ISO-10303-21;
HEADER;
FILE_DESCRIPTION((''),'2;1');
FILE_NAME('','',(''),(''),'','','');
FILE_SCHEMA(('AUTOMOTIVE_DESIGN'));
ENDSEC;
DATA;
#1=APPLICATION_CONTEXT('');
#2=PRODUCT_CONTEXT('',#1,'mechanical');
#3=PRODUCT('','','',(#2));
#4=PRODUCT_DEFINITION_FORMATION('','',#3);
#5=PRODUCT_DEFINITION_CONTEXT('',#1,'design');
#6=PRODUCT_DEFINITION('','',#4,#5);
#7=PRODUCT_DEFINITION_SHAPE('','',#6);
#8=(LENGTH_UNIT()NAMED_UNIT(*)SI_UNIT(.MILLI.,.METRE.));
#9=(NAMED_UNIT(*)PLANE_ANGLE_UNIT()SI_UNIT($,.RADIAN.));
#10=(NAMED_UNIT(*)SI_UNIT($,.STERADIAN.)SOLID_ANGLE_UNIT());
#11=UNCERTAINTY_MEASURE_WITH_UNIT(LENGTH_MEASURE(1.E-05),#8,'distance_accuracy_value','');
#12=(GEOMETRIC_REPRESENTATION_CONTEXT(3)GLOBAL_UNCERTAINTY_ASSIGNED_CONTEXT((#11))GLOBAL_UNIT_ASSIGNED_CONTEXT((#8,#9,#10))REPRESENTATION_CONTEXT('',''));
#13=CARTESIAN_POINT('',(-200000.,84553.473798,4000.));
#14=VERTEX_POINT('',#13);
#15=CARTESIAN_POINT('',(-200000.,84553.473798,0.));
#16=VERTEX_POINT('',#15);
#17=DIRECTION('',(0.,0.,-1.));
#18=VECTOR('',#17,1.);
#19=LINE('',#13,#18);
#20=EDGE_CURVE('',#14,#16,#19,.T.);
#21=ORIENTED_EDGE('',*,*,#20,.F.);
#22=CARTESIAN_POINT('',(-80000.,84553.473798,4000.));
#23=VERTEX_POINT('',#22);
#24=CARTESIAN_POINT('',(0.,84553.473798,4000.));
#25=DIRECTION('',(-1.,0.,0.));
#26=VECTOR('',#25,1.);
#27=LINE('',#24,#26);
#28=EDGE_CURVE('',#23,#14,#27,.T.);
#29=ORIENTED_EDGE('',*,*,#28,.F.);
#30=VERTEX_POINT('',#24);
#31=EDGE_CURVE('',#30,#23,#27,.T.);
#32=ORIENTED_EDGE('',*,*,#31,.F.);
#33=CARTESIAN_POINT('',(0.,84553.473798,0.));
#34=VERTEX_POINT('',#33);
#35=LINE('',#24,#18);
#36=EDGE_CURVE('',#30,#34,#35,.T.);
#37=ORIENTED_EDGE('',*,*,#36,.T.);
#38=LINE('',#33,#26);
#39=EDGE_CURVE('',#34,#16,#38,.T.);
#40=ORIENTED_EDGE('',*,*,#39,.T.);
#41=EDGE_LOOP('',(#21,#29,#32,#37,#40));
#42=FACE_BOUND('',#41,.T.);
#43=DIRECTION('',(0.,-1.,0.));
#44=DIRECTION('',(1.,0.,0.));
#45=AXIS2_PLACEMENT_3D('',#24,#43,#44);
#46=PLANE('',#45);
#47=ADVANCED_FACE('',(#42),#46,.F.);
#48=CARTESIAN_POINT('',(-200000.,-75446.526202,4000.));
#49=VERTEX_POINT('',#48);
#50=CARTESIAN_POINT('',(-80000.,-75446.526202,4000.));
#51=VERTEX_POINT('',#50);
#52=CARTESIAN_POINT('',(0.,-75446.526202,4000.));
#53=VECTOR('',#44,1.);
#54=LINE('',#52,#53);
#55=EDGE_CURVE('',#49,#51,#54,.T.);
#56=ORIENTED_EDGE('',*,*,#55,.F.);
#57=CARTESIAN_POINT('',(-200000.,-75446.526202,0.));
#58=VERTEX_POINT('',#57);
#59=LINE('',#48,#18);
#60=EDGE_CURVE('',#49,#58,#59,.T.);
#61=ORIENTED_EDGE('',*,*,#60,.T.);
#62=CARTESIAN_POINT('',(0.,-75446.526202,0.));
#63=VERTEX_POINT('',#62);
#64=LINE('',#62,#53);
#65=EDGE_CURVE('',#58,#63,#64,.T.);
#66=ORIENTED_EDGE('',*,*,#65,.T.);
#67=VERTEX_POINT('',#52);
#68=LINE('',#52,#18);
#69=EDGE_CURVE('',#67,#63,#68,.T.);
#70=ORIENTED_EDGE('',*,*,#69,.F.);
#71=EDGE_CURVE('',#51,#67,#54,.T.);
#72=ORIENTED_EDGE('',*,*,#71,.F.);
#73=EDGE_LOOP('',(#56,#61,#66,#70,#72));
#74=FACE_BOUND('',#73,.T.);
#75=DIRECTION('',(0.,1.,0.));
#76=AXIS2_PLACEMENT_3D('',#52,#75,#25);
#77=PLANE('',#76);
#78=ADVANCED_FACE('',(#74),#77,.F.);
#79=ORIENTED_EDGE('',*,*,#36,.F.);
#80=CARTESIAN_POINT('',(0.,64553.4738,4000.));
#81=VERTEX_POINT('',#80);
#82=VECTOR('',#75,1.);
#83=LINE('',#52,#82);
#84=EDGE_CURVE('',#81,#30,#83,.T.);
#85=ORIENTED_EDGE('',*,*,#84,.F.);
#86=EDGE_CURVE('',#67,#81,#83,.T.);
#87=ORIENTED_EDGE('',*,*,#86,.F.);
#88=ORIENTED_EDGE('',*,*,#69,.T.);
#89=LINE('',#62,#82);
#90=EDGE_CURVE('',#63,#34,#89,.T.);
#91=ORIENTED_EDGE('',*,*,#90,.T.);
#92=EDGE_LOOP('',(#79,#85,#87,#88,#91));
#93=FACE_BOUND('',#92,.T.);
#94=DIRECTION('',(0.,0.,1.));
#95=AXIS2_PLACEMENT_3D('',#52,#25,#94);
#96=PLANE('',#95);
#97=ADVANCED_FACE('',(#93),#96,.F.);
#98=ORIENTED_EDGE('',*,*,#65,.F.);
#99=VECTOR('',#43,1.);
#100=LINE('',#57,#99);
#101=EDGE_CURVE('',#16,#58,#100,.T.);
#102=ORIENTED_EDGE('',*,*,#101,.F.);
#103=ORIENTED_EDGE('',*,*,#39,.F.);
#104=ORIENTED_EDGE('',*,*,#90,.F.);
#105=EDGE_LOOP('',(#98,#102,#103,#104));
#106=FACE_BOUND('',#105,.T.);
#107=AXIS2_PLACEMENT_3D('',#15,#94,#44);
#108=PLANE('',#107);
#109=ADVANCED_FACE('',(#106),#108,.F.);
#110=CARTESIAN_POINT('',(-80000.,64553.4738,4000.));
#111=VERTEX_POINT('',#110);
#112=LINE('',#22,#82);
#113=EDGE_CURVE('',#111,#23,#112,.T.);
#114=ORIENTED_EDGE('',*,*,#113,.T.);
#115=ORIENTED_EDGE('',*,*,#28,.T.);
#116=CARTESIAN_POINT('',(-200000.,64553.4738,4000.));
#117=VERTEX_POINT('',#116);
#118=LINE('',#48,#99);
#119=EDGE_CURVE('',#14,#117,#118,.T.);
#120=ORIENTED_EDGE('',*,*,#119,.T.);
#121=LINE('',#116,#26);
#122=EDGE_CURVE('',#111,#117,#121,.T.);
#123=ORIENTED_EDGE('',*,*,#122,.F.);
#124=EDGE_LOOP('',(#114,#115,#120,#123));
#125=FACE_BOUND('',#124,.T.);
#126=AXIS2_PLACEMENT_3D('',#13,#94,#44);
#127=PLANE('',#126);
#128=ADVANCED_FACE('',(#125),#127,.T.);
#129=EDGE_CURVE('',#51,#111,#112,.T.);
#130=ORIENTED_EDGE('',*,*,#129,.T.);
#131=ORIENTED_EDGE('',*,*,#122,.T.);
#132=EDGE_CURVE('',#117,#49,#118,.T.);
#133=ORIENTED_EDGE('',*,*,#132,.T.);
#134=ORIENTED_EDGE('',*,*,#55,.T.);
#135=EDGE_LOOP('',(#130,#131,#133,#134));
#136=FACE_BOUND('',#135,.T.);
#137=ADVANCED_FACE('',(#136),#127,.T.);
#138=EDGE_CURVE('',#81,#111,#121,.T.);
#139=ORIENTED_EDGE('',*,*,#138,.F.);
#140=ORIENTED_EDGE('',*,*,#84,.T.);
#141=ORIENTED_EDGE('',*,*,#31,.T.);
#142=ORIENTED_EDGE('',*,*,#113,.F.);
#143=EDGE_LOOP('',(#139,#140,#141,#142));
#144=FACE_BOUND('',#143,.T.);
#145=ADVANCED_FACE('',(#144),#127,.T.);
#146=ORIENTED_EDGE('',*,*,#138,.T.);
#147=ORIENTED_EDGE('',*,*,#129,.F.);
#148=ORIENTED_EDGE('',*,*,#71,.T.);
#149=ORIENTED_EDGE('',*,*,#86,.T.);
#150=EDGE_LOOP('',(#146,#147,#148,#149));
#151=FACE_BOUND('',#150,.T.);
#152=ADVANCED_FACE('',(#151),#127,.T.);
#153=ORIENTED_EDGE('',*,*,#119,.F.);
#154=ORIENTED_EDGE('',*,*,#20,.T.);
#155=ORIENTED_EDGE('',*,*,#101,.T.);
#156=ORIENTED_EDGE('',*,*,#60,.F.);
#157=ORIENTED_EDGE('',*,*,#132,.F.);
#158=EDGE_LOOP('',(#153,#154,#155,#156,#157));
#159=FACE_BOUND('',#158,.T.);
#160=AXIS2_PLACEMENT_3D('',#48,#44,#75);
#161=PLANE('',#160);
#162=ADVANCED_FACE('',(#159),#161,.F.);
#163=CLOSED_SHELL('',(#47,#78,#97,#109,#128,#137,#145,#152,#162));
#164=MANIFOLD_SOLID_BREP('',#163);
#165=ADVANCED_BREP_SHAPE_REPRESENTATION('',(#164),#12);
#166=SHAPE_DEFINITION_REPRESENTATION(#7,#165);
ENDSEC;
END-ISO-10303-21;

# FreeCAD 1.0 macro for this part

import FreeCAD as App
import Part
import Sketcher
from FreeCAD import Vector
Q = App.Units.Quantity


def add_polygon(sketch, points):
    """Adds a closed chain of lines whose ends are joined by coincident constraints."""
    first, n = sketch.GeometryCount, len(points)
    for a, b in zip(points, points[1:] + points[:1]):
        sketch.addGeometry(Part.LineSegment(App.Vector(*a, 0), App.Vector(*b, 0)), False)
    for i in range(n):
        sketch.addConstraint(Sketcher.Constraint("Coincident", first + i, 2, first + (i + 1) % n, 1))

doc = App.newDocument("Part")
body = doc.addObject("PartDesign::Body", "Body")

# Sketch on XY plane
sketch1 = body.newObject("Sketcher::SketchObject", "Sketch")
sketch1.AttachmentSupport = (doc.getObject("XY_Plane"), [""])
sketch1.MapMode = "FlatFace"
add_polygon(sketch1, [(-200000, 84553.473798), (-200000, -75446.526202), (0, -75446.526202), (0, 84553.473798)])  # lines 0-3
sketch1.addConstraint([
    Sketcher.Constraint("Vertical", 0),
    Sketcher.Constraint("Horizontal", 1),
    Sketcher.Constraint("Vertical", 2),
    Sketcher.Constraint("Horizontal", 3),
    Sketcher.Constraint("PointOnObject", 1, 2, -2),
    Sketcher.Constraint("DistanceX", 1, 1, 1, 2, Q("200000 mm")),
    Sketcher.Constraint("DistanceY", 0, 2, 0, 1, Q("160000 mm")),
    Sketcher.Constraint("DistanceY", 0, 2, -1, 1, Q("75446.526202 mm")),
])
pad1 = body.newObject("PartDesign::Pad", "Pad")
pad1.Profile = sketch1
pad1.Length = 4000

doc.recompute()
